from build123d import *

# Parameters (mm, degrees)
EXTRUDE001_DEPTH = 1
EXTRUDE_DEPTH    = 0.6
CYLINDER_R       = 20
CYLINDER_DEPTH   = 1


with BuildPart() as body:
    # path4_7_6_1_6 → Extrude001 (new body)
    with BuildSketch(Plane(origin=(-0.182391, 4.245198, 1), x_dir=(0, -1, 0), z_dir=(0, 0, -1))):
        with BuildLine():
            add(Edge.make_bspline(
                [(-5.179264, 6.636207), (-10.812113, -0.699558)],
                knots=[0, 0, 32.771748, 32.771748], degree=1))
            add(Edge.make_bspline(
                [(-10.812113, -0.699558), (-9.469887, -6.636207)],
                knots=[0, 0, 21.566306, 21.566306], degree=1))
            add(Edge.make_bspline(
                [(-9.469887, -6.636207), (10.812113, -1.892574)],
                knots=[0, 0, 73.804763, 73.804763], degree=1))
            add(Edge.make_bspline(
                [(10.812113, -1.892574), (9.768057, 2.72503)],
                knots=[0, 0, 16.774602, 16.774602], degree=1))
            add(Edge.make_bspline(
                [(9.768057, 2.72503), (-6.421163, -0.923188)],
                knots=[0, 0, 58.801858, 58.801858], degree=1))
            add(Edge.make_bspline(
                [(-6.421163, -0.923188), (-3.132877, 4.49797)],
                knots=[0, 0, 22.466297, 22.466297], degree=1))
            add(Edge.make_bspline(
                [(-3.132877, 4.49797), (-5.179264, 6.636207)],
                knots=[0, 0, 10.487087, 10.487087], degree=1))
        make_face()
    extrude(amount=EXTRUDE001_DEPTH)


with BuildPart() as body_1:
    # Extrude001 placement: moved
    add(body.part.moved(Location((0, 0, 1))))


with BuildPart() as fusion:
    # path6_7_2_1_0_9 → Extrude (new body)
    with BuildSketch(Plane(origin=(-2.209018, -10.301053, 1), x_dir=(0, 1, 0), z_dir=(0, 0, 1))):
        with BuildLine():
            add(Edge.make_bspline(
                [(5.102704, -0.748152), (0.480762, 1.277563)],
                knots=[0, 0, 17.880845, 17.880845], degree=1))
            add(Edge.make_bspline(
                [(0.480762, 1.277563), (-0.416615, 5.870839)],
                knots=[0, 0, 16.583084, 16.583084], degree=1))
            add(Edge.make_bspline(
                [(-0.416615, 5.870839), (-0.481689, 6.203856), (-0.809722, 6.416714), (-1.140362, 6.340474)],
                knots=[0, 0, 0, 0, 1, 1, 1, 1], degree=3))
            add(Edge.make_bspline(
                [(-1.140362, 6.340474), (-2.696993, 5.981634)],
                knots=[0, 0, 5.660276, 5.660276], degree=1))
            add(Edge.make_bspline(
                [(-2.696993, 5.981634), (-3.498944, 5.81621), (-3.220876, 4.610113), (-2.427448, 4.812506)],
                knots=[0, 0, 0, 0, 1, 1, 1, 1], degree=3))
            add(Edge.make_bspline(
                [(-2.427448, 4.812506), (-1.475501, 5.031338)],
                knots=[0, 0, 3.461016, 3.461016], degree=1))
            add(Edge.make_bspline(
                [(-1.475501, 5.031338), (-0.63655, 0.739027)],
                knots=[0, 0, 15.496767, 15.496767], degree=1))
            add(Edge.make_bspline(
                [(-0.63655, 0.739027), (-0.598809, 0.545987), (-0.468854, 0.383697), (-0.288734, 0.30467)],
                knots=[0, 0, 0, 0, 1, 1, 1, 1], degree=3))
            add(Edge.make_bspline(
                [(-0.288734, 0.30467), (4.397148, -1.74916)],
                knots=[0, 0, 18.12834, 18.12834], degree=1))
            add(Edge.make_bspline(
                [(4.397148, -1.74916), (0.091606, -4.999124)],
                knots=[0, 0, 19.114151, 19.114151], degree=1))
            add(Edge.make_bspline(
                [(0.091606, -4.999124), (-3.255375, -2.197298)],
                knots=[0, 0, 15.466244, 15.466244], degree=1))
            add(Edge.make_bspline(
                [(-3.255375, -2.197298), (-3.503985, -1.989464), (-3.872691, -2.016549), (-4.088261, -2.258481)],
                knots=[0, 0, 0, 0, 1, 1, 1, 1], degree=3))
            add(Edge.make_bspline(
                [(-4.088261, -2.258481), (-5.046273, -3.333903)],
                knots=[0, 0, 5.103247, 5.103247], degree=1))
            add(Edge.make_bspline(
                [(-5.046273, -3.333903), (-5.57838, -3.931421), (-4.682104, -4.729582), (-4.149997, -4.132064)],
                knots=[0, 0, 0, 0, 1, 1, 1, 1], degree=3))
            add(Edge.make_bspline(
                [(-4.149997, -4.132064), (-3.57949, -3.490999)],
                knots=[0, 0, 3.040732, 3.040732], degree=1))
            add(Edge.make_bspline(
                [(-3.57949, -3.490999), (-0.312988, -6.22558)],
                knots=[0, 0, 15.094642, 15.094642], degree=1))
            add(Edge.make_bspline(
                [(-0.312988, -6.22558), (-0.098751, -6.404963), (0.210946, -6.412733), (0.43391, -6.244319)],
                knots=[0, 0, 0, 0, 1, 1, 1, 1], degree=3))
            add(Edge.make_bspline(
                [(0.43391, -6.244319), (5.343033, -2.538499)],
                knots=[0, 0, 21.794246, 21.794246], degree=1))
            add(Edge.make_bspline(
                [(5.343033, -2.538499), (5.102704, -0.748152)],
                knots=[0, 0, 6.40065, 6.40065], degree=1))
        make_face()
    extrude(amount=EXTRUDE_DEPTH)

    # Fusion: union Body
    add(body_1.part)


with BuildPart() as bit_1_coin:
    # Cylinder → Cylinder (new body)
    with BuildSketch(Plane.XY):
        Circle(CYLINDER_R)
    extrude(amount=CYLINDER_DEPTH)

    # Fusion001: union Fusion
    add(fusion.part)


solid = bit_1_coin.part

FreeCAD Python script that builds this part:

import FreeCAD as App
import Part
import Sketcher

V = App.Vector

doc = App.newDocument("Part")
body = doc.addObject("PartDesign::Body", "Body")

# Sketch on XY plane
sketch1 = body.newObject("Sketcher::SketchObject", "Sketch")
sketch1.AttachmentSupport = (doc.getObject("XY_Plane"), [""])
sketch1.MapMode = "FlatFace"
sketch1.AttachmentOffset = App.Placement(V(0, 0, 1), App.Rotation())
sketch1.addGeometry(Part.BSplineCurve([V(-6.818598, 9.424462, 0), V(0.517167, 15.057311, 0)], [2, 2], [0, 32.771748], False, 1, [1, 1], False), False)
sketch1.addGeometry(Part.BSplineCurve([V(0.517167, 15.057311, 0), V(6.453816, 13.715085, 0)], [2, 2], [0, 21.566306], False, 1, [1, 1], False), False)
sketch1.addGeometry(Part.BSplineCurve([V(6.453816, 13.715085, 0), V(1.710183, -6.566915, 0)], [2, 2], [0, 73.804763], False, 1, [1, 1], False), False)
sketch1.addGeometry(Part.BSplineCurve([V(1.710183, -6.566915, 0), V(-2.907421, -5.522859, 0)], [2, 2], [0, 16.774602], False, 1, [1, 1], False), False)
sketch1.addGeometry(Part.BSplineCurve([V(-2.907421, -5.522859, 0), V(0.740797, 10.666361, 0)], [2, 2], [0, 58.801858], False, 1, [1, 1], False), False)
sketch1.addGeometry(Part.BSplineCurve([V(0.740797, 10.666361, 0), V(-4.680361, 7.378075, 0)], [2, 2], [0, 22.466297], False, 1, [1, 1], False), False)
sketch1.addGeometry(Part.BSplineCurve([V(-4.680361, 7.378075, 0), V(-6.818598, 9.424462, 0)], [2, 2], [0, 10.487087], False, 1, [1, 1], False), False)
sketch1.addConstraint(Sketcher.Constraint("Block", 0))
sketch1.addConstraint(Sketcher.Constraint("Block", 1))
sketch1.addConstraint(Sketcher.Constraint("Block", 2))
sketch1.addConstraint(Sketcher.Constraint("Block", 3))
sketch1.addConstraint(Sketcher.Constraint("Block", 4))
sketch1.addConstraint(Sketcher.Constraint("Block", 5))
sketch1.addConstraint(Sketcher.Constraint("Block", 6))
pad1 = body.newObject("PartDesign::Pad", "Pad")
pad1.Profile = sketch1
pad1.Length = 1
pad1.Reversed = True
body2 = doc.addObject("PartDesign::Body", "Body001")
doc.recompute()

body.Placement = App.Placement(V(0, 0, 1), App.Rotation(V(0, 0, 1), 0))
boolean = body2.newObject("PartDesign::Boolean", "Boolean")
boolean.Type = "Fuse"
boolean.addObjects([body])
body3 = doc.addObject("PartDesign::Body", "Body002")

# Sketch on XY plane
sketch2 = body3.newObject("Sketcher::SketchObject", "Sketch001")
sketch2.AttachmentSupport = (doc.getObject("XY_Plane002"), [""])
sketch2.MapMode = "FlatFace"
sketch2.AttachmentOffset = App.Placement(V(0, 0, 1), App.Rotation())
sketch2.addGeometry(Part.BSplineCurve([V(-1.460866, -5.198349, 0), V(-3.486581, -9.820291, 0)], [2, 2], [0, 17.880845], False, 1, [1, 1], False), False)
sketch2.addGeometry(Part.BSplineCurve([V(-3.486581, -9.820291, 0), V(-8.079857, -10.717668, 0)], [2, 2], [0, 16.583084], False, 1, [1, 1], False), False)
sketch2.addGeometry(Part.BSplineCurve([V(-8.079857, -10.717668, 0), V(-8.412874, -10.782742, 0), V(-8.625732, -11.110775, 0), V(-8.549492, -11.441415, 0)], [4, 4], [0, 1], False, 3, [1, 1, 1, 1], False), False)
sketch2.addGeometry(Part.BSplineCurve([V(-8.549492, -11.441415, 0), V(-8.190652, -12.998046, 0)], [2, 2], [0, 5.660276], False, 1, [1, 1], False), False)
sketch2.addGeometry(Part.BSplineCurve([V(-8.190652, -12.998046, 0), V(-8.025228, -13.799997, 0), V(-6.819131, -13.521929, 0), V(-7.021524, -12.728501, 0)], [4, 4], [0, 1], False, 3, [1, 1, 1, 1], False), False)
sketch2.addGeometry(Part.BSplineCurve([V(-7.021524, -12.728501, 0), V(-7.240356, -11.776554, 0)], [2, 2], [0, 3.461016], False, 1, [1, 1], False), False)
sketch2.addGeometry(Part.BSplineCurve([V(-7.240356, -11.776554, 0), V(-2.948045, -10.937603, 0)], [2, 2], [0, 15.496767], False, 1, [1, 1], False), False)
sketch2.addGeometry(Part.BSplineCurve([V(-2.948045, -10.937603, 0), V(-2.755005, -10.899862, 0), V(-2.592715, -10.769907, 0), V(-2.513688, -10.589787, 0)], [4, 4], [0, 1], False, 3, [1, 1, 1, 1], False), False)
sketch2.addGeometry(Part.BSplineCurve([V(-2.513688, -10.589787, 0), V(-0.459858, -5.903905, 0)], [2, 2], [0, 18.12834], False, 1, [1, 1], False), False)
sketch2.addGeometry(Part.BSplineCurve([V(-0.459858, -5.903905, 0), V(2.790106, -10.209447, 0)], [2, 2], [0, 19.114151], False, 1, [1, 1], False), False)
sketch2.addGeometry(Part.BSplineCurve([V(2.790106, -10.209447, 0), V(-0.01172, -13.556428, 0)], [2, 2], [0, 15.466244], False, 1, [1, 1], False), False)
sketch2.addGeometry(Part.BSplineCurve([V(-0.01172, -13.556428, 0), V(-0.219554, -13.805038, 0), V(-0.192469, -14.173744, 0), V(0.049463, -14.389314, 0)], [4, 4], [0, 1], False, 3, [1, 1, 1, 1], False), False)
sketch2.addGeometry(Part.BSplineCurve([V(0.049463, -14.389314, 0), V(1.124885, -15.347326, 0)], [2, 2], [0, 5.103247], False, 1, [1, 1], False), False)
sketch2.addGeometry(Part.BSplineCurve([V(1.124885, -15.347326, 0), V(1.722403, -15.879433, 0), V(2.520564, -14.983157, 0), V(1.923046, -14.45105, 0)], [4, 4], [0, 1], False, 3, [1, 1, 1, 1], False), False)
sketch2.addGeometry(Part.BSplineCurve([V(1.923046, -14.45105, 0), V(1.281981, -13.880543, 0)], [2, 2], [0, 3.040732], False, 1, [1, 1], False), False)
sketch2.addGeometry(Part.BSplineCurve([V(1.281981, -13.880543, 0), V(4.016562, -10.614041, 0)], [2, 2], [0, 15.094642], False, 1, [1, 1], False), False)
sketch2.addGeometry(Part.BSplineCurve([V(4.016562, -10.614041, 0), V(4.195945, -10.399804, 0), V(4.203715, -10.090107, 0), V(4.035301, -9.867143, 0)], [4, 4], [0, 1], False, 3, [1, 1, 1, 1], False), False)
sketch2.addGeometry(Part.BSplineCurve([V(4.035301, -9.867143, 0), V(0.329481, -4.95802, 0)], [2, 2], [0, 21.794246], False, 1, [1, 1], False), False)
sketch2.addGeometry(Part.BSplineCurve([V(0.329481, -4.95802, 0), V(-1.460866, -5.198349, 0)], [2, 2], [0, 6.40065], False, 1, [1, 1], False), False)
sketch2.addConstraint(Sketcher.Constraint("Block", 0))
sketch2.addConstraint(Sketcher.Constraint("Block", 1))
sketch2.addConstraint(Sketcher.Constraint("Block", 2))
sketch2.addConstraint(Sketcher.Constraint("Block", 3))
sketch2.addConstraint(Sketcher.Constraint("Block", 4))
sketch2.addConstraint(Sketcher.Constraint("Block", 5))
sketch2.addConstraint(Sketcher.Constraint("Block", 6))
sketch2.addConstraint(Sketcher.Constraint("Block", 7))
sketch2.addConstraint(Sketcher.Constraint("Block", 8))
sketch2.addConstraint(Sketcher.Constraint("Block", 9))
sketch2.addConstraint(Sketcher.Constraint("Block", 10))
sketch2.addConstraint(Sketcher.Constraint("Block", 11))
sketch2.addConstraint(Sketcher.Constraint("Block", 12))
sketch2.addConstraint(Sketcher.Constraint("Block", 13))
sketch2.addConstraint(Sketcher.Constraint("Block", 14))
sketch2.addConstraint(Sketcher.Constraint("Block", 15))
sketch2.addConstraint(Sketcher.Constraint("Block", 16))
sketch2.addConstraint(Sketcher.Constraint("Block", 17))
sketch2.addConstraint(Sketcher.Constraint("Block", 18))
pad2 = body3.newObject("PartDesign::Pad", "Pad001")
pad2.Profile = sketch2
pad2.Length = 0.6
doc.recompute()

boolean2 = body3.newObject("PartDesign::Boolean", "Boolean001")
boolean2.Type = "Fuse"
boolean2.addObjects([body2])
body4 = doc.addObject("PartDesign::Body", "Body003")

# Sketch on XY plane
sketch3 = body4.newObject("Sketcher::SketchObject", "Sketch002")
sketch3.AttachmentSupport = (doc.getObject("XY_Plane003"), [""])
sketch3.MapMode = "FlatFace"
sketch3.addGeometry(Part.Circle(V(0, 0, 0), V(0, 0, 1), 20), False)
sketch3.addConstraint(Sketcher.Constraint("Coincident", 0, 3, -1, 1))
sketch3.addConstraint(Sketcher.Constraint("Diameter", 0, 40.0))
pad3 = body4.newObject("PartDesign::Pad", "Pad002")
pad3.Profile = sketch3
pad3.Length = 1
doc.recompute()

boolean3 = body4.newObject("PartDesign::Boolean", "Boolean002")
boolean3.Type = "Fuse"
boolean3.addObjects([body3])

doc.recompute()
